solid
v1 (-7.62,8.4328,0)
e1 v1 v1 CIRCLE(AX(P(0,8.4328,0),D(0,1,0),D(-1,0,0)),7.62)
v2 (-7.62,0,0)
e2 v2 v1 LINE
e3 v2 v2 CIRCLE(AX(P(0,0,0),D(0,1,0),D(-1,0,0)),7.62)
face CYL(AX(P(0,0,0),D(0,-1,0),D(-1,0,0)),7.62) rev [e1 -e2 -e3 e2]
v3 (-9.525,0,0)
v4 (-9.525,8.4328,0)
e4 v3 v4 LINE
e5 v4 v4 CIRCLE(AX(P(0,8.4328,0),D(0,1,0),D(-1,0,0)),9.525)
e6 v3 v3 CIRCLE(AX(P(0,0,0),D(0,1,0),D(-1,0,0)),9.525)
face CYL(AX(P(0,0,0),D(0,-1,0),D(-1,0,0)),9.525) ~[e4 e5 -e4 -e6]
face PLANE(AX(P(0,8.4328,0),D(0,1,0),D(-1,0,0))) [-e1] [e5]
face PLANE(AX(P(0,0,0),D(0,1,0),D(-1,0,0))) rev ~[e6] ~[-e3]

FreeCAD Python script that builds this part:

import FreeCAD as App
import Part
import Sketcher
from FreeCAD import Vector
Q = App.Units.Quantity

doc = App.newDocument("Part")
body = doc.addObject("PartDesign::Body", "Body")

# Sketch on XZ plane
sketch1 = body.newObject("Sketcher::SketchObject", "Sketch")
sketch1.AttachmentSupport = (doc.getObject("XZ_Plane"), [""])
sketch1.MapMode = "FlatFace"
sketch1.addGeometry(Part.Circle(Vector(0, 0, 0), Vector(0, 0, 1), 9.525), False)
sketch1.addGeometry(Part.Circle(Vector(0, 0, 0), Vector(0, 0, 1), 7.62), False)
sketch1.addConstraint(Sketcher.Constraint("Coincident", 0, 3, -1, 1))
sketch1.addConstraint(Sketcher.Constraint("Coincident", 1, 3, -1, 1))
sketch1.addConstraint(Sketcher.Constraint("Diameter", 1, Q("0.6 in")))
sketch1.addConstraint(Sketcher.Constraint("Diameter", 0, Q("0.75 in")))
pad1 = body.newObject("PartDesign::Pad", "Pad")
pad1.Profile = sketch1
pad1.Length = Q("0.332 in")
pad1.Reversed = True

doc.recompute()
